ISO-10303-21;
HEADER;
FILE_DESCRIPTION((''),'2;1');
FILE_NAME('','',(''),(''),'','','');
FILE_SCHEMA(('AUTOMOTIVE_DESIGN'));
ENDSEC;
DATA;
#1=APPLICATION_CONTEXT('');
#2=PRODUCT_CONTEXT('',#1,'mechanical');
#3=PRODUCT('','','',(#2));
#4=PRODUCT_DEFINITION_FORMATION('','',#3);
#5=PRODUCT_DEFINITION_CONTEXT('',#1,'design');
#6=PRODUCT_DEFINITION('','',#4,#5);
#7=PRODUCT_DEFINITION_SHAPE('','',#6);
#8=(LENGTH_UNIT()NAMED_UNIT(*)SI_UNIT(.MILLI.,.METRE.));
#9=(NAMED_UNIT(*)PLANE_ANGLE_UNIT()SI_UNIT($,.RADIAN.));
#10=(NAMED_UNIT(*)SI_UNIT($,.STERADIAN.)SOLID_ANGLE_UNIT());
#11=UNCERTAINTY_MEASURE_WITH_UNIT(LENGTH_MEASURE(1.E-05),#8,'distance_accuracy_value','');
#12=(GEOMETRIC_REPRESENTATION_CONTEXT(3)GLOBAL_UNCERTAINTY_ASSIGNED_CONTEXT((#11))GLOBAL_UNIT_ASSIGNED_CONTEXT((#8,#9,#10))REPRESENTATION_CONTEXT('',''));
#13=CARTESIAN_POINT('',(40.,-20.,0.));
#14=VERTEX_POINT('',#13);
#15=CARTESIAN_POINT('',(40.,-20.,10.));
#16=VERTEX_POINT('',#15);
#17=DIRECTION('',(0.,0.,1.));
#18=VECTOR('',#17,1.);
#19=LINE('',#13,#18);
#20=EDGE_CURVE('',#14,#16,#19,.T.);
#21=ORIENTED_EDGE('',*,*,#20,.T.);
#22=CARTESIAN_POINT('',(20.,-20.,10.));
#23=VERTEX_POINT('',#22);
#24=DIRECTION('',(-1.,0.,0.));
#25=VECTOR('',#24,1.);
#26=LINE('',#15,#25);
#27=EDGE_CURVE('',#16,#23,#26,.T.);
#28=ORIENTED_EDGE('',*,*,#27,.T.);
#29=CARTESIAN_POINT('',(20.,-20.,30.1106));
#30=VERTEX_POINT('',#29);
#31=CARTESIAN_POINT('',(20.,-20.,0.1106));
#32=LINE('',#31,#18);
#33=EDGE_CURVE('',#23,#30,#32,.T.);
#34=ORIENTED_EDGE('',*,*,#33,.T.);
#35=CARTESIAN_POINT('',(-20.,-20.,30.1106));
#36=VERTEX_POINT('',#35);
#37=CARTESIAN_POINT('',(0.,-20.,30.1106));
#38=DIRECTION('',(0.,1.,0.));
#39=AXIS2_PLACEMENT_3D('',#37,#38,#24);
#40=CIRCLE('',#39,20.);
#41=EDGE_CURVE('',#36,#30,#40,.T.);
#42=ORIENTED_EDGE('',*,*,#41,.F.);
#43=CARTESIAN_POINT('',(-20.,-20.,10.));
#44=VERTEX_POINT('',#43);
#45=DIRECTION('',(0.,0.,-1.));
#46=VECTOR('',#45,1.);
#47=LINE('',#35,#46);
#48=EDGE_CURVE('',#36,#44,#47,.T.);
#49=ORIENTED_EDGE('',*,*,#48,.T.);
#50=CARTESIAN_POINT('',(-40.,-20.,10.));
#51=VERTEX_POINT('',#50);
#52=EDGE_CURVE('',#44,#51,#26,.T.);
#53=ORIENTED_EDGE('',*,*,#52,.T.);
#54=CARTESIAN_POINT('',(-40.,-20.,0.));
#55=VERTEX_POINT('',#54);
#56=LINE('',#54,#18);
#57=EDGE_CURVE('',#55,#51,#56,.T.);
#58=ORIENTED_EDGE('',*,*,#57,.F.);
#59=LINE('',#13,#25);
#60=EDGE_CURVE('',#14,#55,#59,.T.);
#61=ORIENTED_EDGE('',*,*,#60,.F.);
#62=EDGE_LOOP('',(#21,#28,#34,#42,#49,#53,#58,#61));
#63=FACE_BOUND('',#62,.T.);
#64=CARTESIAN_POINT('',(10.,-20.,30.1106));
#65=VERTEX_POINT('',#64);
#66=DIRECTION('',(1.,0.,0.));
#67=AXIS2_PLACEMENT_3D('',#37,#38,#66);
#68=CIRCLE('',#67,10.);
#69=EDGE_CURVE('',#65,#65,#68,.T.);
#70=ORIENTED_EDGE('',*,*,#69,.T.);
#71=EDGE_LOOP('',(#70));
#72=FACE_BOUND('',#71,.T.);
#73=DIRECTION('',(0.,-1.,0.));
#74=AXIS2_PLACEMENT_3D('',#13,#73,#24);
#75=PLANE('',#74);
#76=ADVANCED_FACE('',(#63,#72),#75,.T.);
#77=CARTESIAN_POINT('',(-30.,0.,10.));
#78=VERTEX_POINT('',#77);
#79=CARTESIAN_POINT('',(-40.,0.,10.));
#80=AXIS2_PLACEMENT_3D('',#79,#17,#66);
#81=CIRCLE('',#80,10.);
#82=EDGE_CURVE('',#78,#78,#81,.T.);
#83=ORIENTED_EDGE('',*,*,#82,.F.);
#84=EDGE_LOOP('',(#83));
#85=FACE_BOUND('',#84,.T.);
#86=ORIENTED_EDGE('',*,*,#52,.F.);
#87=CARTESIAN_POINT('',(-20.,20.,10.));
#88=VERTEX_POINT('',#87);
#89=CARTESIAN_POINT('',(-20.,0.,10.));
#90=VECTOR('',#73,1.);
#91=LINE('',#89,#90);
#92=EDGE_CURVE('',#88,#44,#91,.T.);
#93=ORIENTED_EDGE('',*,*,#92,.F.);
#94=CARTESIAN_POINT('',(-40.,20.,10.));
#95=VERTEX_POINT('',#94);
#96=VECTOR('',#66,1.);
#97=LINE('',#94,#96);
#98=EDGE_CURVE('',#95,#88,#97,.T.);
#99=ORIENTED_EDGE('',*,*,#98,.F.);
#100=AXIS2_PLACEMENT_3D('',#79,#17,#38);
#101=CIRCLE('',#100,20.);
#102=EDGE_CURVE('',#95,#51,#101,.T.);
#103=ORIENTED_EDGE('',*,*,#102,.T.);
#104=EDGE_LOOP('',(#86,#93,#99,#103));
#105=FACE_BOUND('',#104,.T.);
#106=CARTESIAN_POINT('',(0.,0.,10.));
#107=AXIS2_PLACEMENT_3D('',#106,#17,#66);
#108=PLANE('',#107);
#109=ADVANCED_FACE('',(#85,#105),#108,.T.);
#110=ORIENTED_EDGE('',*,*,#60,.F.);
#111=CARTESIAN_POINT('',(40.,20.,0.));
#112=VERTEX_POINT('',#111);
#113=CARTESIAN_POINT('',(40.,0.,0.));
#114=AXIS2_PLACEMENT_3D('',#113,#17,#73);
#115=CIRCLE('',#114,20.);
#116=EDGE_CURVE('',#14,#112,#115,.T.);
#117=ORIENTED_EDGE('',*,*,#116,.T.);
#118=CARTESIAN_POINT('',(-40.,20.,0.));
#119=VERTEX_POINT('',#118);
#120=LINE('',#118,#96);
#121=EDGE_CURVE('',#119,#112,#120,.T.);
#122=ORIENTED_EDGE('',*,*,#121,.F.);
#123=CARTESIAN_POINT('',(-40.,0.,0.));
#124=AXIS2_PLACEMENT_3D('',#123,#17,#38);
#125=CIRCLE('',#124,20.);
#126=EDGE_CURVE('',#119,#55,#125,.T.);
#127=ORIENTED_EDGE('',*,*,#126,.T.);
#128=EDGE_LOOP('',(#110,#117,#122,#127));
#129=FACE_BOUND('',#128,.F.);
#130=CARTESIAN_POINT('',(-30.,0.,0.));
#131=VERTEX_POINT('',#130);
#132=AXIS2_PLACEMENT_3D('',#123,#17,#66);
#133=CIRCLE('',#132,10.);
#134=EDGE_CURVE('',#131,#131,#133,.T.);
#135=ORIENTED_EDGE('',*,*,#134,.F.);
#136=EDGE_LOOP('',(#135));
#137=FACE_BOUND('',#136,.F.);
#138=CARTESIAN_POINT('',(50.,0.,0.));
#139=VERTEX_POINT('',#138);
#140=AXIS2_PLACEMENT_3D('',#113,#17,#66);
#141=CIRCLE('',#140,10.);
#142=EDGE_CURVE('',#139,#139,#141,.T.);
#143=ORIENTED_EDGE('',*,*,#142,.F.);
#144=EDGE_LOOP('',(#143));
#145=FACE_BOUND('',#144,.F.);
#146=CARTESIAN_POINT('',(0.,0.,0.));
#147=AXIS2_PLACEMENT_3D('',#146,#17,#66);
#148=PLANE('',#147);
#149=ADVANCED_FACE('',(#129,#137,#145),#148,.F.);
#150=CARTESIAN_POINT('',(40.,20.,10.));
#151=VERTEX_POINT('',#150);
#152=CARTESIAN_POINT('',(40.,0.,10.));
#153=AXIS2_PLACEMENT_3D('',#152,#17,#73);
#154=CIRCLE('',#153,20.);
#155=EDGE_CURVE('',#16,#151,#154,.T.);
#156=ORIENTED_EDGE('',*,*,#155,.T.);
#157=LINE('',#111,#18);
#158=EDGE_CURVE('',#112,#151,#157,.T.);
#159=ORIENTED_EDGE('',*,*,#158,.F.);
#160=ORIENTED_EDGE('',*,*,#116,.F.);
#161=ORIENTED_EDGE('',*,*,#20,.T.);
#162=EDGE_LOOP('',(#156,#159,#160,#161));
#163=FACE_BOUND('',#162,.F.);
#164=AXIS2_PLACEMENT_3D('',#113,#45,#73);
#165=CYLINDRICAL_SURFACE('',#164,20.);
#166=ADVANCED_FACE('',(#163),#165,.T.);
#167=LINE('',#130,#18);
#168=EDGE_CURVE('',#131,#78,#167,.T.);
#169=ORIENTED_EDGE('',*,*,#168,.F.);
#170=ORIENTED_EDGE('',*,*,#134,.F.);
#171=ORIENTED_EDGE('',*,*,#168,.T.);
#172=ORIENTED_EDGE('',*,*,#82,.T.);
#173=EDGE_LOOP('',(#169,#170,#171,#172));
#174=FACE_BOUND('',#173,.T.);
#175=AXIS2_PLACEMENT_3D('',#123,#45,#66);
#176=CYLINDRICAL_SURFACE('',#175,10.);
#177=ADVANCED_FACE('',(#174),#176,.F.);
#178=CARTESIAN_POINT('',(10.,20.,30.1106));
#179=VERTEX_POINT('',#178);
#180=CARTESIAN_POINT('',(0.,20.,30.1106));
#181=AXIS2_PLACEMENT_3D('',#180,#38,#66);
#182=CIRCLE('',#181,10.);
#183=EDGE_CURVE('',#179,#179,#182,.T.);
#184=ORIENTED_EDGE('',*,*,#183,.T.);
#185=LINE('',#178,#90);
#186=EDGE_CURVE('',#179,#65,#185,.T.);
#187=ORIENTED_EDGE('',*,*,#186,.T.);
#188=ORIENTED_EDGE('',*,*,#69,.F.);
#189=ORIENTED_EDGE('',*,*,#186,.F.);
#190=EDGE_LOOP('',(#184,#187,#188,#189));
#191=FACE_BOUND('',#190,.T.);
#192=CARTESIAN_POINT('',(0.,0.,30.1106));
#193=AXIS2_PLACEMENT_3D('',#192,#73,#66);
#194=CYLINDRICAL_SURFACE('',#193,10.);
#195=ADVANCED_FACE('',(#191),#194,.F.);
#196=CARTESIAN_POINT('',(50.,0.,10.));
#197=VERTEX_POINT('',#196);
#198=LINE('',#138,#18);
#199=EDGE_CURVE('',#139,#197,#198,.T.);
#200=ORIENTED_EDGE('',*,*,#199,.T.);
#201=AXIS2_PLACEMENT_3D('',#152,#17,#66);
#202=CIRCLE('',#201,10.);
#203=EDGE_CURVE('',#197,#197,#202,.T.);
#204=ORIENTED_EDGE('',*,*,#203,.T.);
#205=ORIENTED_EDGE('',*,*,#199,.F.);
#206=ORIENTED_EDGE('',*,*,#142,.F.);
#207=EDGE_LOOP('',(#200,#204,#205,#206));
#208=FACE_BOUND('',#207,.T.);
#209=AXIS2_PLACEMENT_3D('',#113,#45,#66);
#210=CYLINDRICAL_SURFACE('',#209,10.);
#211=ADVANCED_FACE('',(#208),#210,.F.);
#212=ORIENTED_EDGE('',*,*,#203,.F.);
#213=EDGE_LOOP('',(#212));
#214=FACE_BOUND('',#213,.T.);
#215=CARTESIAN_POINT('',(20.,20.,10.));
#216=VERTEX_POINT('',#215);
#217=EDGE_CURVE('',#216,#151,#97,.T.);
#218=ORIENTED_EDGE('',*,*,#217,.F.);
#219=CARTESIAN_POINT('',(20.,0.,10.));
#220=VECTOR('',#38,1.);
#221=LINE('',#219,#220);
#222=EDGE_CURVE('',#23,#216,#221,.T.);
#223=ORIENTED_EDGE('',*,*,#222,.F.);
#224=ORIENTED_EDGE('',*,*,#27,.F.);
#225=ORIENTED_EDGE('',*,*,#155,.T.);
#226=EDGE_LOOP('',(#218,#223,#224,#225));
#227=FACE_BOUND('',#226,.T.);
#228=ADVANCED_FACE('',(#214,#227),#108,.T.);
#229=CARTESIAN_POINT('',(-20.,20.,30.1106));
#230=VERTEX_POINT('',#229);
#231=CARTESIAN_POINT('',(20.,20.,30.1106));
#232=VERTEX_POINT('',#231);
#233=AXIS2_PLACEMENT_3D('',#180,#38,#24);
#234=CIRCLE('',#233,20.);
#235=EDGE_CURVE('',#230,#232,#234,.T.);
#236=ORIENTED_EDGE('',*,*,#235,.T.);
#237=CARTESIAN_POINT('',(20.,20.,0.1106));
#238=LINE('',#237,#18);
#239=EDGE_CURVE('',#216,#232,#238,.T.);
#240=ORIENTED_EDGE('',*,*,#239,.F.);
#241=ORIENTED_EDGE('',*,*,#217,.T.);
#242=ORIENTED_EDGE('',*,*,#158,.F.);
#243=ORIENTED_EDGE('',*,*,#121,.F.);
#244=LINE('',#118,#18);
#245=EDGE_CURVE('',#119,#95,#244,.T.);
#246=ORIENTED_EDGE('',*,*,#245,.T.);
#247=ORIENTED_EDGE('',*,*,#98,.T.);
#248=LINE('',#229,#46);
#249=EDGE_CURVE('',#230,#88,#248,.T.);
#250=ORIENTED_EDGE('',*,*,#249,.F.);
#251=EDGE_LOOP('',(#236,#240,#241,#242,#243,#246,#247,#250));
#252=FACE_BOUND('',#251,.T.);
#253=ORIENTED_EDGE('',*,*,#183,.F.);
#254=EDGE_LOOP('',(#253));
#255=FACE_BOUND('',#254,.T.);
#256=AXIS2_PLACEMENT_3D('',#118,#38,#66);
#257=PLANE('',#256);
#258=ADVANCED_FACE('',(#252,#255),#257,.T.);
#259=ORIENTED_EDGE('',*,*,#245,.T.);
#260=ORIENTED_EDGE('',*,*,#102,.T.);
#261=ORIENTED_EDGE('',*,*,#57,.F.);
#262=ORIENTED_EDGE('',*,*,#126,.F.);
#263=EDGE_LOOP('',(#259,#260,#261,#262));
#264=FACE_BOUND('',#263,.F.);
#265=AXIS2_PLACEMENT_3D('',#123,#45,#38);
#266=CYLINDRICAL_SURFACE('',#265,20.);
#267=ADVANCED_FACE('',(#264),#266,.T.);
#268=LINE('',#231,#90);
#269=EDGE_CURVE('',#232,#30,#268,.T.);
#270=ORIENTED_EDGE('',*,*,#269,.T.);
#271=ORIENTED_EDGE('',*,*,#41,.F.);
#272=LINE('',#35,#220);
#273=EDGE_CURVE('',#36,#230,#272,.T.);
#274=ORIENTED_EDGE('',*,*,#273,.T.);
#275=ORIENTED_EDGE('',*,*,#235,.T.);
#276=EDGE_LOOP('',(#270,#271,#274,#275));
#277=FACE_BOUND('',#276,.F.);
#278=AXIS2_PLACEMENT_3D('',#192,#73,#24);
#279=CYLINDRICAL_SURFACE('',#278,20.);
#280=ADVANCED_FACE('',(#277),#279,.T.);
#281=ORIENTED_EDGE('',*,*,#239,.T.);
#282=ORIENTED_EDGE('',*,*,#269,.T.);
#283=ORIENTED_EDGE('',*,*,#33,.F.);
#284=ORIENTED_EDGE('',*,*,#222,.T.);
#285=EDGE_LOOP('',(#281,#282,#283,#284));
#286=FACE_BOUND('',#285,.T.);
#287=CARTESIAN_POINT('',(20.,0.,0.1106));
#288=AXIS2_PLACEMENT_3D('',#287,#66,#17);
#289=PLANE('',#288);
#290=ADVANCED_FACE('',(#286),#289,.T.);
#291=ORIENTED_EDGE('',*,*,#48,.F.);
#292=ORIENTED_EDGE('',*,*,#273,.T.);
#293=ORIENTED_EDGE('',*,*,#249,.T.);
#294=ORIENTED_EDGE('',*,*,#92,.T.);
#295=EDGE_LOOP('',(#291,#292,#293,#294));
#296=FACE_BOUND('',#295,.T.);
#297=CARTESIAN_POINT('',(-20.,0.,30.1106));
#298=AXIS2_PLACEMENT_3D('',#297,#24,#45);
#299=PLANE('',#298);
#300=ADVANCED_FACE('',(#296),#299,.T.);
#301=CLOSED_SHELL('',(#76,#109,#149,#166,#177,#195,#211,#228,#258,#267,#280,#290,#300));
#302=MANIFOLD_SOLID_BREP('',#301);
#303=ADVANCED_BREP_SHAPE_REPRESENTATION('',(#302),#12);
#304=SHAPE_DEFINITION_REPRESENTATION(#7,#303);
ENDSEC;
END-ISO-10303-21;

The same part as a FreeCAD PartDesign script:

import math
import FreeCAD as App
import Part
import Sketcher
from FreeCAD import Vector
Q = App.Units.Quantity

doc = App.newDocument("Part")
params = doc.addObject("Spreadsheet::Sheet", "Params")
for row, (alias, value) in enumerate([
    ("sketch1_radius", "20 mm"),
    ("sketch1_width", "80 mm"),
    ("sketch1_diameter", "20 mm"),
    ("pad1_length", "10 mm"),
    ("sketch2_diameter", "20 mm"),
    ("sketch2_radius", "20 mm"),
    ("sketch2_height", "30 mm"),
    ("pad2_length", "40 mm"),
], start=1):
    params.set(f"A{row}", alias)
    params.set(f"B{row}", "=" + value)
    params.setAlias(f"B{row}", alias)

body = doc.addObject("PartDesign::Body", "Body")

# Sketch on XY plane
sketch1 = body.newObject("Sketcher::SketchObject", "Sketch")
sketch1.AttachmentSupport = (doc.getObject("XY_Plane"), [""])
sketch1.MapMode = "FlatFace"
sketch1.addGeometry(Part.LineSegment(Vector(40, 20, 0), Vector(-40, 20, 0)), False)
sketch1.addGeometry(Part.ArcOfCircle(Part.Circle(Vector(-40, 0, 0), Vector(0, 0, 1), 20), math.radians(90), math.radians(270)), False)
sketch1.addGeometry(Part.LineSegment(Vector(-40, -20, 0), Vector(40, -20, 0)), False)
sketch1.addGeometry(Part.ArcOfCircle(Part.Circle(Vector(40, 0, 0), Vector(0, 0, 1), 20), math.radians(-90), math.radians(90)), False)
sketch1.addGeometry(Part.Circle(Vector(-40, 0, 0), Vector(0, 0, 1), 10), False)
sketch1.addGeometry(Part.Circle(Vector(40, 0, 0), Vector(0, 0, 1), 10), False)
sketch1.addConstraint(Sketcher.Constraint("Tangent", 0, 2, 1, 1))
sketch1.addConstraint(Sketcher.Constraint("Tangent", 1, 2, 2, 1))
sketch1.addConstraint(Sketcher.Constraint("Tangent", 2, 2, 3, 1))
sketch1.addConstraint(Sketcher.Constraint("Tangent", 3, 2, 0, 1))
sketch1.addConstraint(Sketcher.Constraint("Horizontal", 0))
sketch1.addConstraint(Sketcher.Constraint("Horizontal", 2))
sketch1.addConstraint(Sketcher.Constraint("Coincident", 4, 3, 1, 3))
sketch1.addConstraint(Sketcher.Constraint("Coincident", 5, 3, 3, 3))
sketch1.addConstraint(Sketcher.Constraint("Equal", 4, 5))
sketch1.addConstraint(Sketcher.Constraint("Symmetric", 1, 3, 3, 3, -1, 1))
sketch1.addConstraint(Sketcher.Constraint("Radius", 1, Q("20 mm")))
sketch1.addConstraint(Sketcher.Constraint("DistanceX", 0, 2, 0, 1, Q("80 mm")))
sketch1.addConstraint(Sketcher.Constraint("Diameter", 4, Q("20 mm")))
sketch1.setExpression("Constraints[10]", "Params.sketch1_radius")
sketch1.setExpression("Constraints[11]", "Params.sketch1_width")
sketch1.setExpression("Constraints[12]", "Params.sketch1_diameter")
pad1 = body.newObject("PartDesign::Pad", "Pad")
pad1.Profile = sketch1
pad1.setExpression("Length", "Params.pad1_length")

# Sketch on XZ plane
sketch2 = body.newObject("Sketcher::SketchObject", "Sketch001")
sketch2.AttachmentSupport = (doc.getObject("XZ_Plane"), [""])
sketch2.MapMode = "FlatFace"
sketch2.addGeometry(Part.LineSegment(Vector(20, 0, 0), Vector(-20, 0, 0)), False)
sketch2.addGeometry(Part.LineSegment(Vector(-20, 0, 0), Vector(-20, 30, 0)), False)
sketch2.addGeometry(Part.ArcOfCircle(Part.Circle(Vector(0, 30, 0), Vector(0, 0, 1), 20), math.radians(0), math.radians(180)), False)
sketch2.addGeometry(Part.LineSegment(Vector(20, 30, 0), Vector(20, 0, 0)), False)
sketch2.addGeometry(Part.Circle(Vector(0, 30, 0), Vector(0, 0, 1), 10), False)
sketch2.addConstraint(Sketcher.Constraint("Coincident", 0, 2, 1, 1))
sketch2.addConstraint(Sketcher.Constraint("Tangent", 1, 2, 2, 2))
sketch2.addConstraint(Sketcher.Constraint("Tangent", 2, 1, 3, 1))
sketch2.addConstraint(Sketcher.Constraint("Coincident", 3, 2, 0, 1))
sketch2.addConstraint(Sketcher.Constraint("Horizontal", 0))
sketch2.addConstraint(Sketcher.Constraint("Vertical", 1))
sketch2.addConstraint(Sketcher.Constraint("Vertical", 3))
sketch2.addConstraint(Sketcher.Constraint("Coincident", 4, 3, 2, 3))
sketch2.addConstraint(Sketcher.Constraint("PointOnObject", 2, 3, -2))
sketch2.addConstraint(Sketcher.Constraint("Diameter", 4, Q("20 mm")))
sketch2.addConstraint(Sketcher.Constraint("Radius", 2, Q("20 mm")))
sketch2.addConstraint(Sketcher.Constraint("DistanceY", 1, 1, 1, 2, Q("30 mm")))
sketch2.addConstraint(Sketcher.Constraint("DistanceY", -1, 1, 2, 3, Q("30.1106 mm")))
sketch2.setExpression("Constraints[9]", "Params.sketch2_diameter")
sketch2.setExpression("Constraints[10]", "Params.sketch2_radius")
sketch2.setExpression("Constraints[11]", "Params.sketch2_height")
pad2 = body.newObject("PartDesign::Pad", "Pad001")
pad2.Profile = sketch2
pad2.setExpression("Length", "Params.pad2_length")
pad2.Midplane = True

doc.recompute()
